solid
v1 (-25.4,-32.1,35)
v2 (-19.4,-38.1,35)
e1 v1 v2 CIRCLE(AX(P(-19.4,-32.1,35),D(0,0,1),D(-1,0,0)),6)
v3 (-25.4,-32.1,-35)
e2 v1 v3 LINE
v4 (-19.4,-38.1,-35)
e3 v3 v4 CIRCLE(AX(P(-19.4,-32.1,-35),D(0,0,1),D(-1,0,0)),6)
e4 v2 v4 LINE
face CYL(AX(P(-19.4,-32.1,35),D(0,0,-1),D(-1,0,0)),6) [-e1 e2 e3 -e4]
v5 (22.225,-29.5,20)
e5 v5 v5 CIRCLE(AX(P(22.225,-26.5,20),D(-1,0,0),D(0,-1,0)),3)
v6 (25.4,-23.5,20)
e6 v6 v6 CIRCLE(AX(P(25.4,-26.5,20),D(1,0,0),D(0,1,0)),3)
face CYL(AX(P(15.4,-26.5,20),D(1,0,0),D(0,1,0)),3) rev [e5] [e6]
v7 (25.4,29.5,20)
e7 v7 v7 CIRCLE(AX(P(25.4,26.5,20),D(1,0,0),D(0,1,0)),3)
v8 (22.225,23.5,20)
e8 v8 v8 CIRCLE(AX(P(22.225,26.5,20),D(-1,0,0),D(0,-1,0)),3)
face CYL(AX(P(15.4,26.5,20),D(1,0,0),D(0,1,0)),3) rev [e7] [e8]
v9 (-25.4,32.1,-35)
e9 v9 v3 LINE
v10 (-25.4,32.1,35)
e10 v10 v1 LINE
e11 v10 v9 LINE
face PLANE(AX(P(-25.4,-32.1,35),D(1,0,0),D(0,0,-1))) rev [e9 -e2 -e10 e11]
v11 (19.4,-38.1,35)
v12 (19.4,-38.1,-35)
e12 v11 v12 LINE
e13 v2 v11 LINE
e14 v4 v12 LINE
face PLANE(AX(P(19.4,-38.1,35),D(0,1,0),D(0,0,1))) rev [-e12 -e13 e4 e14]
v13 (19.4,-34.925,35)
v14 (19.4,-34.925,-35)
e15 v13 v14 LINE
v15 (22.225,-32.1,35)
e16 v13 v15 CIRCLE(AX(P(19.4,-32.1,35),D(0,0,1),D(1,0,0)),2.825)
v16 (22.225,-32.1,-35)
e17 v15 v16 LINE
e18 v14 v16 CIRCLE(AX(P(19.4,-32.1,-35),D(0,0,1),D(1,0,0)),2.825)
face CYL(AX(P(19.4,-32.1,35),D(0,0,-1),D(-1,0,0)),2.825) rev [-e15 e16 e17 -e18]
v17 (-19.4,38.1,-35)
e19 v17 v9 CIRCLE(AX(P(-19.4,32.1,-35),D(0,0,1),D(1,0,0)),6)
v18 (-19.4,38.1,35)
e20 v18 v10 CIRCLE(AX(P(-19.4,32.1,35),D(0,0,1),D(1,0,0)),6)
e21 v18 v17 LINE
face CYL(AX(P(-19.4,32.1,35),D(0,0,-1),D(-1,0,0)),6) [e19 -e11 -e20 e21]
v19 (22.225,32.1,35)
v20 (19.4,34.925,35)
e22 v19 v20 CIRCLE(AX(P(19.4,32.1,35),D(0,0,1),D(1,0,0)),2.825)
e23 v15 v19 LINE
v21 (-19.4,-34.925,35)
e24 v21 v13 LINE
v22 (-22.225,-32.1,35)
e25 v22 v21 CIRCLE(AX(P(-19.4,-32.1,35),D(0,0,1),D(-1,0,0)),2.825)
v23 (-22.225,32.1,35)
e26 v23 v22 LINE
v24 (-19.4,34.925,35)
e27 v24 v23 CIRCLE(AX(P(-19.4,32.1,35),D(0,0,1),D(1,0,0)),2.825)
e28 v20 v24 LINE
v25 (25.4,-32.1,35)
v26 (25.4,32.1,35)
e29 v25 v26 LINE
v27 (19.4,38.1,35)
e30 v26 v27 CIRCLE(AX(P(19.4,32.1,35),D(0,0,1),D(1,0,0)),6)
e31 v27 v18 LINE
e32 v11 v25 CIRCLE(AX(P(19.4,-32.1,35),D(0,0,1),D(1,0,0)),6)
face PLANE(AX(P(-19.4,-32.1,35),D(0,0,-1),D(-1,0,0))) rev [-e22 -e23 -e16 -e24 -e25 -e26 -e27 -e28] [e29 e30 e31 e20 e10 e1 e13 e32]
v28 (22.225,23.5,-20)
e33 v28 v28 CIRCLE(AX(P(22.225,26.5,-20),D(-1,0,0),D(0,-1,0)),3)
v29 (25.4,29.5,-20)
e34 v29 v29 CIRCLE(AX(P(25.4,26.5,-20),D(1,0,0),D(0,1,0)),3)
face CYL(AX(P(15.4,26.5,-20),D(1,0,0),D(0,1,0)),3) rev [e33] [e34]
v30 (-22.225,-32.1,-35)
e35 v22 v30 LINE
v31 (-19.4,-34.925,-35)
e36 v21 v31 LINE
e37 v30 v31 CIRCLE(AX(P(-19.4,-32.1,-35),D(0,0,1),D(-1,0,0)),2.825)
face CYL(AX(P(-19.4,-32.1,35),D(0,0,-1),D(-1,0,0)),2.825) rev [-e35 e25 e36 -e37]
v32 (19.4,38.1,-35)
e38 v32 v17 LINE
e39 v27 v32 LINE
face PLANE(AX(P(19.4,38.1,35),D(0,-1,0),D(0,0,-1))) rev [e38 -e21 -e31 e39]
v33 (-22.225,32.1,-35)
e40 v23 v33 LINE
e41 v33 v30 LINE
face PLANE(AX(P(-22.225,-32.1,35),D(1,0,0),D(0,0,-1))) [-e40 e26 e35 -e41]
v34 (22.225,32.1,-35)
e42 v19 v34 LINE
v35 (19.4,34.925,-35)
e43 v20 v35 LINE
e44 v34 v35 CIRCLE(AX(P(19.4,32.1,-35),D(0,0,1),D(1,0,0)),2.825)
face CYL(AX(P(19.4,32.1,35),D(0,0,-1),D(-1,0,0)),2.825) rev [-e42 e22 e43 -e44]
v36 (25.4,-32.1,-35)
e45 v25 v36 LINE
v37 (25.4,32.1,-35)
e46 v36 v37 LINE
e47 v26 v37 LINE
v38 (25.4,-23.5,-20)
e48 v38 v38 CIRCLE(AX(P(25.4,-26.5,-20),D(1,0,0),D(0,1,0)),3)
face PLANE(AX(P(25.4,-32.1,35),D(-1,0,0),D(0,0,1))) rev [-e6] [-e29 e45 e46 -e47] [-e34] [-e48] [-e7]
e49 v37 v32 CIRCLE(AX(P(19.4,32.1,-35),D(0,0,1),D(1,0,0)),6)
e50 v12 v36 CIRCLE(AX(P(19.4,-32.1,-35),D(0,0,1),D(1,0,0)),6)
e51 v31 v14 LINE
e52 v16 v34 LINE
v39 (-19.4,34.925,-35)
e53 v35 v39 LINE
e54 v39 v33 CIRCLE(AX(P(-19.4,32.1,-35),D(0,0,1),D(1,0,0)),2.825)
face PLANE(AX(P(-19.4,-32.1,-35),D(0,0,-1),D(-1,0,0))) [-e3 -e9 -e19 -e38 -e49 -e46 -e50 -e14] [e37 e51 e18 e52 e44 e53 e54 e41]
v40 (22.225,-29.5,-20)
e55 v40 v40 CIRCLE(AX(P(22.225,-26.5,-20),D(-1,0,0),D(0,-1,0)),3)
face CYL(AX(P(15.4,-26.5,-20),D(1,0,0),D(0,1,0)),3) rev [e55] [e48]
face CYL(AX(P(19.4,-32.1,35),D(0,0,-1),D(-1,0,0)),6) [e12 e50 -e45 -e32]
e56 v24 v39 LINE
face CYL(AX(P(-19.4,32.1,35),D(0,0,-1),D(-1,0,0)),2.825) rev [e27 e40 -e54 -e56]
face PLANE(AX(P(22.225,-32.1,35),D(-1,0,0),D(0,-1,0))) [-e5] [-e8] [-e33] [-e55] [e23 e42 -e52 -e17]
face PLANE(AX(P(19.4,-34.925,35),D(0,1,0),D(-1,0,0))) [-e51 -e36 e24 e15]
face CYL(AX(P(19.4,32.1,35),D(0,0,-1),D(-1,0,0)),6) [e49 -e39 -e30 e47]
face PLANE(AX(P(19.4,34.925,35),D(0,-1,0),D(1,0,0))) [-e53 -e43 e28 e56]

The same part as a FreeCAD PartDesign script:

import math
import FreeCAD as App
import Part
import Sketcher
from FreeCAD import Vector
Q = App.Units.Quantity

doc = App.newDocument("Part")
body = doc.addObject("PartDesign::Body", "Body")

# Sketch on XY plane
sketch1 = body.newObject("Sketcher::SketchObject", "Sketch")
sketch1.AttachmentSupport = (doc.getObject("XY_Plane"), [""])
sketch1.MapMode = "FlatFace"
sketch1.addGeometry([
    Part.LineSegment(Vector(-19.4, -38.1, 0), Vector(19.4, -38.1, 0)),  # 0
    Part.ArcOfCircle(Part.Circle(Vector(19.4, -32.1, 0), Vector(0, 0, 1), 6), math.radians(-90), math.radians(0)),  # 1
    Part.LineSegment(Vector(25.4, -32.1, 0), Vector(25.4, 32.1, 0)),  # 2
    Part.ArcOfCircle(Part.Circle(Vector(19.4, 32.1, 0), Vector(0, 0, 1), 6), math.radians(0), math.radians(90)),  # 3
    Part.LineSegment(Vector(19.4, 38.1, 0), Vector(-19.4, 38.1, 0)),  # 4
    Part.ArcOfCircle(Part.Circle(Vector(-19.4, 32.1, 0), Vector(0, 0, 1), 6), math.radians(90), math.radians(180)),  # 5
    Part.LineSegment(Vector(-25.4, 32.1, 0), Vector(-25.4, -32.1, 0)),  # 6
    Part.ArcOfCircle(Part.Circle(Vector(-19.4, -32.1, 0), Vector(0, 0, 1), 6), math.radians(180), math.radians(270)),  # 7
    Part.ArcOfCircle(Part.Circle(Vector(19.4, 32.1, 0), Vector(0, 0, 1), 2.8), math.radians(0), math.radians(90)),  # 8
    Part.LineSegment(Vector(22.2, 32.1, 0), Vector(22.2, -32.1, 0)),  # 9
    Part.ArcOfCircle(Part.Circle(Vector(19.4, -32.1, 0), Vector(0, 0, 1), 2.8), math.radians(-90), math.radians(0)),  # 10
    Part.LineSegment(Vector(19.4, -34.9, 0), Vector(-19.4, -34.9, 0)),  # 11
    Part.ArcOfCircle(Part.Circle(Vector(-19.4, -32.1, 0), Vector(0, 0, 1), 2.8), math.radians(180), math.radians(270)),  # 12
    Part.LineSegment(Vector(-22.2, -32.1, 0), Vector(-22.2, 32.1, 0)),  # 13
    Part.ArcOfCircle(Part.Circle(Vector(-19.4, 32.1, 0), Vector(0, 0, 1), 2.8), math.radians(90), math.radians(180)),  # 14
    Part.LineSegment(Vector(-19.4, 34.9, 0), Vector(19.4, 34.9, 0)),  # 15
], False)
sketch1.addConstraint([
    Sketcher.Constraint("Tangent", 0, 2, 1, 1),
    Sketcher.Constraint("Tangent", 1, 2, 2, 1),
    Sketcher.Constraint("Tangent", 2, 2, 3, 1),
    Sketcher.Constraint("Tangent", 3, 2, 4, 1),
    Sketcher.Constraint("Tangent", 4, 2, 5, 1),
    Sketcher.Constraint("Tangent", 5, 2, 6, 1),
    Sketcher.Constraint("Tangent", 6, 2, 7, 1),
    Sketcher.Constraint("Tangent", 7, 2, 0, 1),
    Sketcher.Constraint("Tangent", 8, 1, 9, 1),
    Sketcher.Constraint("Tangent", 9, 2, 10, 2),
    Sketcher.Constraint("Tangent", 10, 1, 11, 1),
    Sketcher.Constraint("Tangent", 11, 2, 12, 2),
    Sketcher.Constraint("Tangent", 12, 1, 13, 1),
    Sketcher.Constraint("Tangent", 13, 2, 14, 2),
    Sketcher.Constraint("Tangent", 14, 1, 15, 1),
    Sketcher.Constraint("Tangent", 15, 2, 8, 2),
    Sketcher.Constraint("Horizontal", 0),
    Sketcher.Constraint("Vertical", 2),
    Sketcher.Constraint("Horizontal", 4),
    Sketcher.Constraint("Vertical", 6),
    Sketcher.Constraint("Vertical", 9),
    Sketcher.Constraint("Horizontal", 11),
    Sketcher.Constraint("Vertical", 13),
    Sketcher.Constraint("Horizontal", 15),
    Sketcher.Constraint("Coincident", 8, 3, 3, 3),
    Sketcher.Constraint("Coincident", 10, 3, 1, 3),
    Sketcher.Constraint("Coincident", 12, 3, 7, 3),
    Sketcher.Constraint("Equal", 1, 3),
    Sketcher.Constraint("Equal", 3, 5),
    Sketcher.Constraint("Equal", 5, 7),
    Sketcher.Constraint("Equal", 12, 14),
    Sketcher.Constraint("Symmetric", 1, 3, 5, 3, -1, 1),
    Sketcher.Constraint("Radius", 1, Q("6 mm")),
    Sketcher.Constraint("DistanceX", 0, 1, 0, 2, Q("38.8 mm")),
    Sketcher.Constraint("DistanceY", 2, 1, 2, 2, Q("64.2 mm")),
    Sketcher.Constraint("Radius", 8, Q("2.825 mm")),
])
pad1 = body.newObject("PartDesign::Pad", "Pad")
pad1.Profile = sketch1
pad1.Length = 70
pad1.Midplane = True

# Sketch on YZ plane
sketch2 = body.newObject("Sketcher::SketchObject", "Sketch001")
sketch2.AttachmentSupport = (doc.getObject("YZ_Plane"), [""])
sketch2.MapMode = "FlatFace"
sketch2.AttachmentOffset = App.Placement(Vector(0, 0, 25.4), App.Rotation())
sketch2.addGeometry([
    Part.Circle(Vector(26.5, 20, 0), Vector(0, 0, 1), 3),
    Part.Circle(Vector(26.5, -20, 0), Vector(0, 0, 1), 3),
    Part.Circle(Vector(-26.5, -20, 0), Vector(0, 0, 1), 3),
    Part.Circle(Vector(-26.5, 20, 0), Vector(0, 0, 1), 3),
], False)
sketch2.addConstraint([
    Sketcher.Constraint("Equal", 0, 1),
    Sketcher.Constraint("Equal", 1, 2),
    Sketcher.Constraint("Equal", 2, 3),
    Sketcher.Constraint("Symmetric", 0, 3, 2, 3, -1, 1),
    Sketcher.Constraint("Symmetric", 1, 3, 3, 3, -1, 1),
    Sketcher.Constraint("Symmetric", 1, 3, 2, 3, -2),
    Sketcher.Constraint("Diameter", 0, Q("6 mm")),
    Sketcher.Constraint("DistanceY", -1, 1, 0, 3, Q("20 mm")),
    Sketcher.Constraint("DistanceX", 2, 3, 1, 3, Q("53 mm")),
])
pocket1 = body.newObject("PartDesign::Pocket", "Pocket")
pocket1.Profile = sketch2
pocket1.Length = 10

doc.recompute()
